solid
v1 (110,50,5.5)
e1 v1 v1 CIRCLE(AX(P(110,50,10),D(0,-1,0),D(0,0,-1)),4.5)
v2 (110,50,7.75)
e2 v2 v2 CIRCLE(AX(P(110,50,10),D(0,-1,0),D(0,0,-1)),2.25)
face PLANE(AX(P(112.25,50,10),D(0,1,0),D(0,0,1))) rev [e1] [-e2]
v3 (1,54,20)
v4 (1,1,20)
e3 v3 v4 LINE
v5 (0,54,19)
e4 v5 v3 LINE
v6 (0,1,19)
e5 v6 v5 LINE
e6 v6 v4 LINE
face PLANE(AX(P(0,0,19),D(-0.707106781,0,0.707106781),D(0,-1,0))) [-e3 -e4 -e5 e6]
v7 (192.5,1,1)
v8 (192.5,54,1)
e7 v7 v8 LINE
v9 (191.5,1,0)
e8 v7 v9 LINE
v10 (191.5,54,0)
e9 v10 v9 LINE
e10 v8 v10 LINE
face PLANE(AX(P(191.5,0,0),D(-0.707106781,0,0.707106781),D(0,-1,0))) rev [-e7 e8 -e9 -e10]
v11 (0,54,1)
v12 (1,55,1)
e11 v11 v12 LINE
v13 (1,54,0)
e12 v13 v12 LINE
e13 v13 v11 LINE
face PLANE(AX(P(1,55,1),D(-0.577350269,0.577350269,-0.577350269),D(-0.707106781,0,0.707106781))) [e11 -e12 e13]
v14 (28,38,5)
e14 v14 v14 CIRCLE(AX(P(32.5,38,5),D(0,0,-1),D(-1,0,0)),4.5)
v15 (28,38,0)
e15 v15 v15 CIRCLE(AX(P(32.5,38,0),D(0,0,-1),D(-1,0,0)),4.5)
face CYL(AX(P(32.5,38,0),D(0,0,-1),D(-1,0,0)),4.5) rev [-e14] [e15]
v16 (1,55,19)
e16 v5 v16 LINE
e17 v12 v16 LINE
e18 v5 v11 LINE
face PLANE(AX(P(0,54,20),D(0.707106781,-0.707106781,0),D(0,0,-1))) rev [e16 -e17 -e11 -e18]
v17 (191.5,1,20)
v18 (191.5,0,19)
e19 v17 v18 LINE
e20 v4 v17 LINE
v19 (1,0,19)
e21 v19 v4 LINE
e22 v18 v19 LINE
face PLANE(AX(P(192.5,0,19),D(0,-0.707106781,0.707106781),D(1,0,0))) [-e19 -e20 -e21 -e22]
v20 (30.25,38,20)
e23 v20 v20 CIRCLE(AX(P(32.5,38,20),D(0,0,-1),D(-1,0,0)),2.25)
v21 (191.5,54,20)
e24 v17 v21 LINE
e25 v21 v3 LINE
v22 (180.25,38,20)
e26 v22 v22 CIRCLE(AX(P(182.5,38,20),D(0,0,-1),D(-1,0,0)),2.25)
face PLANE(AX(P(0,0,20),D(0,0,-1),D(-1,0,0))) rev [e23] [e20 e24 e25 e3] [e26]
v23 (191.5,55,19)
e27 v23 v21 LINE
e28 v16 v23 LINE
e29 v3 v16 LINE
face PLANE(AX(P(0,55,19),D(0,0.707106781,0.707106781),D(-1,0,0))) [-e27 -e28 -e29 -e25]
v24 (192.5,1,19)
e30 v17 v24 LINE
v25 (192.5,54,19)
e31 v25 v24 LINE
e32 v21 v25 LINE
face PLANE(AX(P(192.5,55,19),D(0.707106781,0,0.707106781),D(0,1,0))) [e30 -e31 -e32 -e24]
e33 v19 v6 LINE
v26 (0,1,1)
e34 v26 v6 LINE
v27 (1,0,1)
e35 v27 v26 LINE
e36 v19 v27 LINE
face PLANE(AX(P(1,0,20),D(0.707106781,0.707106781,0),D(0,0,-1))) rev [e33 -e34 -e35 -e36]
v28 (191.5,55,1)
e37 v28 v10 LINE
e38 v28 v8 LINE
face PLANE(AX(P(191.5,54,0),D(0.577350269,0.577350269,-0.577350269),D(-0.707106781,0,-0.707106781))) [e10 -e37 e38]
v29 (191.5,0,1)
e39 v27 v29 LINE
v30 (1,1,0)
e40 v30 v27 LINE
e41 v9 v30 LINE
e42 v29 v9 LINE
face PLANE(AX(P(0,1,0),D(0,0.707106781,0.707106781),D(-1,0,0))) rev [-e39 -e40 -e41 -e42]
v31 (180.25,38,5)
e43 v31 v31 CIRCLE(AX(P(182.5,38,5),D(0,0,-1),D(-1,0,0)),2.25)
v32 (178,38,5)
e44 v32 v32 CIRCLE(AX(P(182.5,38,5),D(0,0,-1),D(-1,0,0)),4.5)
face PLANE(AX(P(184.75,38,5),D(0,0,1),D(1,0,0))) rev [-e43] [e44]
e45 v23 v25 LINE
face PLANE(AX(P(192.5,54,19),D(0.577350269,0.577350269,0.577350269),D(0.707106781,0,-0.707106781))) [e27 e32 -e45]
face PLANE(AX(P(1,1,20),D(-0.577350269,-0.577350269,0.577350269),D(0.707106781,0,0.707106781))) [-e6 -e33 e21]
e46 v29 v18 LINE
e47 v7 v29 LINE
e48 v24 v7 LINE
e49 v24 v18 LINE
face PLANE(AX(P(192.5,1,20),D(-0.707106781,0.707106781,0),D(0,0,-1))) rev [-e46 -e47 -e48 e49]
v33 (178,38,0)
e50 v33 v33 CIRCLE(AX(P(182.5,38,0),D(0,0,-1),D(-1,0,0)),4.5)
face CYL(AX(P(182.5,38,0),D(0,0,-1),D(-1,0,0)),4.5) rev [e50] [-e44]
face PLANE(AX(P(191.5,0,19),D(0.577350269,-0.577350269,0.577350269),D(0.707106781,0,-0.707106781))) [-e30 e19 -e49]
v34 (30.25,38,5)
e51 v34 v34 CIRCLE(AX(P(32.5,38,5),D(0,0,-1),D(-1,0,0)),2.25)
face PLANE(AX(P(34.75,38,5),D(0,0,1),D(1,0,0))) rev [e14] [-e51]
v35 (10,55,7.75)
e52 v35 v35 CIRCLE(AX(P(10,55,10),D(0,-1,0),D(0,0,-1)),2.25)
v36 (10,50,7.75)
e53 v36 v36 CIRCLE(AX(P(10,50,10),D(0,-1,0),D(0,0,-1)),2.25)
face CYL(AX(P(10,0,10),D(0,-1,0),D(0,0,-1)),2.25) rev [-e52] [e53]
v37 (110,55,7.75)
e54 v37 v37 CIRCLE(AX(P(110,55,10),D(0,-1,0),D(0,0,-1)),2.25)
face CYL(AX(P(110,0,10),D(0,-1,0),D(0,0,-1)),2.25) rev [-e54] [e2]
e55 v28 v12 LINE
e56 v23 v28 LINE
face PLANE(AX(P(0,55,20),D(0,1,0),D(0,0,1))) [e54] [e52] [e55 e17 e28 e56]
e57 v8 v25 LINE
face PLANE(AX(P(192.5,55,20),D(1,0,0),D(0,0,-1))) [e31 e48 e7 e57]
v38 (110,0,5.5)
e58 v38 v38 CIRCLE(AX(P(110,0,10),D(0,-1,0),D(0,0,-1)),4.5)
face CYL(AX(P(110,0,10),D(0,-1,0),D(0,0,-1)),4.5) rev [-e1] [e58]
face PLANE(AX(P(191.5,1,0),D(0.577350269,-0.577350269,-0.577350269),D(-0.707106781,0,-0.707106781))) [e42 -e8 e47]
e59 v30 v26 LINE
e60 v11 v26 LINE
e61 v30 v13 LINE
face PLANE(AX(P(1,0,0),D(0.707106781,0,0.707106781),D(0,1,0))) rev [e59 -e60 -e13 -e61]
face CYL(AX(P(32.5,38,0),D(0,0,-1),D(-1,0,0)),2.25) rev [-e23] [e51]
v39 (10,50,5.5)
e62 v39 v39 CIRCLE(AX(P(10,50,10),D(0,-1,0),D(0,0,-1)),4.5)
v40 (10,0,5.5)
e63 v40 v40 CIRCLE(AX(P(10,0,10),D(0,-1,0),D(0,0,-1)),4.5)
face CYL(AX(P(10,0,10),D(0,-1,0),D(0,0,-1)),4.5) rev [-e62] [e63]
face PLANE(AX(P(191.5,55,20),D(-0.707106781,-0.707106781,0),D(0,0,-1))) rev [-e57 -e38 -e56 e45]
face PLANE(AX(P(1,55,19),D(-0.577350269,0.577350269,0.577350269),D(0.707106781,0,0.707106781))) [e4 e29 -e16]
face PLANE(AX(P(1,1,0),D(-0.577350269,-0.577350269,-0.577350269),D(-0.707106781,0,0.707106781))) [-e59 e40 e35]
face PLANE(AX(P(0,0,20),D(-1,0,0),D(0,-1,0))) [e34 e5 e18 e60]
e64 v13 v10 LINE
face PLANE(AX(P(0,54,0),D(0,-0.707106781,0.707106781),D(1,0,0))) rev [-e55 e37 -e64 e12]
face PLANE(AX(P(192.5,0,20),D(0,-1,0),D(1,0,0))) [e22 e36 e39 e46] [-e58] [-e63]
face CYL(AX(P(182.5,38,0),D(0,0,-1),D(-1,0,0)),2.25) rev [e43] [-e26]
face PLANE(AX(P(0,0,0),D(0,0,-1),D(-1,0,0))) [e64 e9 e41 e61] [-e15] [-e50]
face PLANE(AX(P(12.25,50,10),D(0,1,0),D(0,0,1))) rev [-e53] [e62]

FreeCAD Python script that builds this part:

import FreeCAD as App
import Part
import Sketcher
Q = App.Units.Quantity


def edges_at(feature, points):
    """Names of the edges that pass closest to the given points."""
    edges = feature.Shape.Edges
    near = lambda p: min(range(len(edges)), key=lambda i: edges[i].distToShape(Part.Vertex(*p))[0])
    return sorted({f"Edge{near(p) + 1}" for p in points})

doc = App.newDocument("Part")
params = doc.addObject("Spreadsheet::Sheet", "Params")
for row, (alias, value) in enumerate([
    ("sketch1_height", "55 mm"),
    ("sketch1_width", "192.5 mm"),
    ("pad1_length", "20 mm"),
    ("sketch2_diameter", "4.5 mm"),
    ("hole_diameter", "4.5 mm"),
    ("hole_depth", "55 mm"),
    ("hole_cbore_diameter", "9 mm"),
    ("hole_cbore_depth", "50 mm"),
    ("sketch3_diameter", "4.5 mm"),
    ("hole2_diameter", "4.5 mm"),
    ("hole2_depth", "20 mm"),
    ("hole2_cbore_diameter", "9 mm"),
    ("hole2_cbore_depth", "5 mm"),
    ("chamfer_size", "1 mm"),
], start=1):
    params.set(f"A{row}", alias)
    params.set(f"B{row}", "=" + value)
    params.setAlias(f"B{row}", alias)

body = doc.addObject("PartDesign::Body", "Body")

# Sketch on XY plane
sketch1 = doc.addObject("Sketcher::SketchObject", "Sketch")
body.addObject(sketch1)
sketch1.AttachmentSupport = (doc.XY_Plane, [""])
sketch1.MapMode = "FlatFace"
sketch1.addGeometry([
    Part.LineSegment(App.Vector(192, 55, 0), App.Vector(192, 0, 0)),
    Part.LineSegment(App.Vector(192, 0, 0), App.Vector(0, 0, 0)),
    Part.LineSegment(App.Vector(0, 0, 0), App.Vector(0, 55, 0)),
    Part.LineSegment(App.Vector(0, 55, 0), App.Vector(192, 55, 0)),
], False)
sketch1.addConstraint([
    Sketcher.Constraint("Coincident", 0, 2, 1, 1),
    Sketcher.Constraint("Coincident", 1, 2, 2, 1),
    Sketcher.Constraint("Coincident", 2, 2, 3, 1),
    Sketcher.Constraint("Coincident", 3, 2, 0, 1),
    Sketcher.Constraint("Vertical", 0),
    Sketcher.Constraint("Horizontal", 1),
    Sketcher.Constraint("Vertical", 2),
    Sketcher.Constraint("Horizontal", 3),
    Sketcher.Constraint("Coincident", 1, 2, -1, 1),
    Sketcher.Constraint("DistanceY", 0, 2, 0, 1, Q("55 mm")),
    Sketcher.Constraint("DistanceX", 1, 2, 1, 1, Q("192.5 mm")),
])
sketch1.setExpression("Constraints[9]", "Params.sketch1_height")
sketch1.setExpression("Constraints[10]", "Params.sketch1_width")
pad1 = doc.addObject("PartDesign::Pad", "Pad")
body.addObject(pad1)
pad1.Profile = sketch1
pad1.setExpression("Length", "Params.pad1_length")

# Sketch on XZ plane
sketch2 = doc.addObject("Sketcher::SketchObject", "Sketch001")
body.addObject(sketch2)
sketch2.AttachmentSupport = (doc.XZ_Plane, [""])
sketch2.MapMode = "FlatFace"
sketch2.addGeometry([
    Part.Circle(App.Vector(110, 10, 0), App.Vector(0, 0, 1), 2.2),
    Part.Circle(App.Vector(10, 10, 0), App.Vector(0, 0, 1), 2.2),
], False)
sketch2.addConstraint([
    Sketcher.Constraint("Equal", 0, 1),
    Sketcher.Constraint("Horizontal", 0, 3, 1, 3),
    Sketcher.Constraint("Diameter", 0, Q("4.5 mm")),
    Sketcher.Constraint("DistanceX", -1, 1, 0, 3, Q("110 mm")),
    Sketcher.Constraint("DistanceY", -1, 1, 0, 3, Q("10 mm")),
    Sketcher.Constraint("DistanceX", -1, 1, 1, 3, Q("10 mm")),
])
sketch2.setExpression("Constraints[2]", "Params.sketch2_diameter")
doc.recompute()
hole = doc.addObject("PartDesign::Hole", "Hole")
body.addObject(hole)
hole.Profile = sketch2
hole.ThreadType = "None"
hole.setExpression("Diameter", "Params.hole_diameter")
hole.DepthType = "Dimension"
hole.setExpression("Depth", "Params.hole_depth")
hole.DrillPoint = "Flat"
hole.HoleCutType = "Counterbore"
hole.setExpression("HoleCutDiameter", "Params.hole_cbore_diameter")
hole.setExpression("HoleCutDepth", "Params.hole_cbore_depth")

# Sketch on XY plane
sketch3 = doc.addObject("Sketcher::SketchObject", "Sketch002")
body.addObject(sketch3)
sketch3.AttachmentSupport = (doc.XY_Plane, [""])
sketch3.MapMode = "FlatFace"
sketch3.addGeometry([
    Part.Circle(App.Vector(182.5, 38, 0), App.Vector(0, 0, 1), 2.2),
    Part.Circle(App.Vector(32.5, 38, 0), App.Vector(0, 0, 1), 2.2),
], False)
sketch3.addConstraint([
    Sketcher.Constraint("Equal", 0, 1),
    Sketcher.Constraint("Horizontal", 0, 3, 1, 3),
    Sketcher.Constraint("Diameter", 0, Q("4.5 mm")),
    Sketcher.Constraint("DistanceY", -1, 1, 0, 3, Q("38 mm")),
    Sketcher.Constraint("DistanceX", 1, 3, 0, 3, Q("150 mm")),
    Sketcher.Constraint("DistanceX", -1, 1, 0, 3, Q("182.5 mm")),
])
sketch3.setExpression("Constraints[2]", "Params.sketch3_diameter")
doc.recompute()
hole2 = doc.addObject("PartDesign::Hole", "Hole001")
body.addObject(hole2)
hole2.Profile = sketch3
hole2.ThreadType = "None"
hole2.setExpression("Diameter", "Params.hole2_diameter")
hole2.DepthType = "Dimension"
hole2.setExpression("Depth", "Params.hole2_depth")
hole2.DrillPoint = "Flat"
hole2.HoleCutType = "Counterbore"
hole2.setExpression("HoleCutDiameter", "Params.hole2_cbore_diameter")
hole2.setExpression("HoleCutDepth", "Params.hole2_cbore_depth")
hole2.Reversed = True
doc.recompute()

chamfer = doc.addObject("PartDesign::Chamfer", "Chamfer")
body.addObject(chamfer)
chamfer.Base = (hole2, edges_at(hole2, [
    (192.5, 27.5, 20),
    (96.25, 0, 20),
    (0, 27.5, 20),
    (96.25, 0, 0),
    (192.5, 27.5, 0),
    (96.25, 55, 0),
    (0, 27.5, 0),
    (0, 0, 10),
    (192.5, 0, 10),
    (192.5, 55, 10),
    (0, 55, 10),
    (96.25, 55, 20),
]))
chamfer.setExpression("Size", "Params.chamfer_size")

doc.recompute()
